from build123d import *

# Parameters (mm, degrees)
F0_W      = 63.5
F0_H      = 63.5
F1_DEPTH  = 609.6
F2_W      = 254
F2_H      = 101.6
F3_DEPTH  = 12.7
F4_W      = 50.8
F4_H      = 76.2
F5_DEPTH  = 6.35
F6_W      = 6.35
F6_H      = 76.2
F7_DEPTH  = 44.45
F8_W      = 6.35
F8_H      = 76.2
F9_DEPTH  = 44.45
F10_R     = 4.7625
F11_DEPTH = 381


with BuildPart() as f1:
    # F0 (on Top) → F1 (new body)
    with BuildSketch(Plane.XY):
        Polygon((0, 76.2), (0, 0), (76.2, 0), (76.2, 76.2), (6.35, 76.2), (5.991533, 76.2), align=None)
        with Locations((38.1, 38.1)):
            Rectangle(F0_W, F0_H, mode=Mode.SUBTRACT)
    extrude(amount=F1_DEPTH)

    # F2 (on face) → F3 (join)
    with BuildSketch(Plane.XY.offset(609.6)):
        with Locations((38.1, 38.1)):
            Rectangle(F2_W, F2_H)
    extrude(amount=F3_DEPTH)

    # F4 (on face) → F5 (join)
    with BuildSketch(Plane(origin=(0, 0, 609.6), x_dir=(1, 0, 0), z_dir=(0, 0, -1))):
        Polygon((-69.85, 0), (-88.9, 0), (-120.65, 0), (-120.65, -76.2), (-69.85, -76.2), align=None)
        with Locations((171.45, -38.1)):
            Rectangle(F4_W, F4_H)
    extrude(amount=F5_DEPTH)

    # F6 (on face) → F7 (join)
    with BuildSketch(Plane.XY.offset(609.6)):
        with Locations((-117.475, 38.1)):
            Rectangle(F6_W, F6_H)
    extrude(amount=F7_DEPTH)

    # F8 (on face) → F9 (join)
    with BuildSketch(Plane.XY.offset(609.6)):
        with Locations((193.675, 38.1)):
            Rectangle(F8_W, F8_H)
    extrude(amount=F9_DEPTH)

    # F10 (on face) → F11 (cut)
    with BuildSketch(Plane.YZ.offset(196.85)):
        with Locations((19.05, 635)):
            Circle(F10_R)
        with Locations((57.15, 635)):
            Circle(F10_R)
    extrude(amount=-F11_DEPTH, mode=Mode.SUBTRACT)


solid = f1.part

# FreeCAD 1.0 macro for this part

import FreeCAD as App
import Part
import Sketcher

V = App.Vector
Q = App.Units.Quantity


def add_polygon(sketch, points):
    """Adds a closed chain of lines whose ends are joined by coincident constraints."""
    first, n = sketch.GeometryCount, len(points)
    for a, b in zip(points, points[1:] + points[:1]):
        sketch.addGeometry(Part.LineSegment(App.Vector(*a, 0), App.Vector(*b, 0)), False)
    for i in range(n):
        sketch.addConstraint(Sketcher.Constraint("Coincident", first + i, 2, first + (i + 1) % n, 1))

doc = App.newDocument("Part")
body = doc.addObject("PartDesign::Body", "Body")

sketch1 = body.newObject("Sketcher::SketchObject", "Sketch")
sketch1.AttachmentSupport = (doc.getObject("XY_Plane"), [""])
sketch1.MapMode = "FlatFace"
add_polygon(sketch1, [(0, 76), (0, 0), (76, 0), (76, 76)])
add_polygon(sketch1, [(70, 6), (6, 6), (6, 70), (70, 70)])
sketch1.addConstraint(Sketcher.Constraint("Vertical", 0))
sketch1.addConstraint(Sketcher.Constraint("Horizontal", 1))
sketch1.addConstraint(Sketcher.Constraint("Vertical", 2))
sketch1.addConstraint(Sketcher.Constraint("Horizontal", 3))
sketch1.addConstraint(Sketcher.Constraint("Horizontal", 4))
sketch1.addConstraint(Sketcher.Constraint("Vertical", 5))
sketch1.addConstraint(Sketcher.Constraint("Horizontal", 6))
sketch1.addConstraint(Sketcher.Constraint("Vertical", 7))
sketch1.addConstraint(Sketcher.Constraint("Coincident", 0, 2, -1, 1))
sketch1.addConstraint(Sketcher.Constraint("Equal", 3, 0))
sketch1.addConstraint(Sketcher.Constraint("Equal", 6, 5))
sketch1.addConstraint(Sketcher.Constraint("DistanceX", 1, 1, 1, 2, Q("3 in")))
sketch1.addConstraint(Sketcher.Constraint("DistanceX", 4, 2, 4, 1, Q("2.5 in")))
sketch1.addConstraint(Sketcher.Constraint("DistanceX", -1, 1, 4, 2, Q("0.25 in")))
sketch1.addConstraint(Sketcher.Constraint("DistanceY", -1, 1, 4, 2, Q("0.25 in")))
pad1 = body.newObject("PartDesign::Pad", "Pad")
pad1.Profile = sketch1
pad1.Length = Q("24 in")

sketch2 = body.newObject("Sketcher::SketchObject", "Sketch001")
sketch2.AttachmentSupport = (doc.getObject("XY_Plane"), [""])
sketch2.MapMode = "FlatFace"
sketch2.AttachmentOffset = App.Placement(V(0, 0, 24 * 25.4), App.Rotation())
add_polygon(sketch2, [(-89, 89), (-89, -13), (165, -13), (165, 89)])
sketch2.addConstraint(Sketcher.Constraint("Vertical", 0))
sketch2.addConstraint(Sketcher.Constraint("Horizontal", 1))
sketch2.addConstraint(Sketcher.Constraint("Vertical", 2))
sketch2.addConstraint(Sketcher.Constraint("Horizontal", 3))
sketch2.addConstraint(Sketcher.Constraint("DistanceX", 1, 1, 1, 2, Q("10 in")))
sketch2.addConstraint(Sketcher.Constraint("DistanceY", 0, 2, 0, 1, Q("4 in")))
sketch2.addConstraint(Sketcher.Constraint("DistanceX", 0, 2, -1, 1, Q("3.5 in")))
sketch2.addConstraint(Sketcher.Constraint("DistanceY", 0, 2, -1, 1, Q("0.5 in")))
pad2 = body.newObject("PartDesign::Pad", "Pad001")
pad2.Profile = sketch2
pad2.Length = Q("0.5 in")

sketch3 = body.newObject("Sketcher::SketchObject", "Sketch002")
sketch3.AttachmentSupport = (doc.getObject("XY_Plane"), [""])
sketch3.MapMode = "FlatFace"
sketch3.AttachmentOffset = App.Placement(V(0, 0, 24 * 25.4), App.Rotation())
add_polygon(sketch3, [(-70, 0), (-121, 0), (-121, 76), (-70, 76)])
add_polygon(sketch3, [(146, 0), (146, 76), (197, 76), (197, 0)])
sketch3.addConstraint(Sketcher.Constraint("Horizontal", 0))
sketch3.addConstraint(Sketcher.Constraint("Vertical", 1))
sketch3.addConstraint(Sketcher.Constraint("Horizontal", 2))
sketch3.addConstraint(Sketcher.Constraint("Vertical", 3))
sketch3.addConstraint(Sketcher.Constraint("Vertical", 4))
sketch3.addConstraint(Sketcher.Constraint("Horizontal", 5))
sketch3.addConstraint(Sketcher.Constraint("Vertical", 6))
sketch3.addConstraint(Sketcher.Constraint("Horizontal", 7))
sketch3.addConstraint(Sketcher.Constraint("PointOnObject", 0, 2, -1))
sketch3.addConstraint(Sketcher.Constraint("PointOnObject", 6, 2, -1))
sketch3.addConstraint(Sketcher.Constraint("Horizontal", 2, 2, 4, 2))
sketch3.addConstraint(Sketcher.Constraint("Equal", 2, 5))
sketch3.addConstraint(Sketcher.Constraint("DistanceX", 0, 2, 0, 1, Q("2 in")))
sketch3.addConstraint(Sketcher.Constraint("DistanceY", 1, 1, 1, 2, Q("3 in")))
sketch3.addConstraint(Sketcher.Constraint("DistanceX", 2, 2, 4, 2, Q("8.5 in")))
sketch3.addConstraint(Sketcher.Constraint("DistanceX", 0, 2, -1, 1, Q("4.75 in")))
pad3 = body.newObject("PartDesign::Pad", "Pad002")
pad3.Profile = sketch3
pad3.Length = Q("0.25 in")
pad3.Reversed = True

sketch4 = body.newObject("Sketcher::SketchObject", "Sketch003")
sketch4.AttachmentSupport = (doc.getObject("XY_Plane"), [""])
sketch4.MapMode = "FlatFace"
sketch4.AttachmentOffset = App.Placement(V(0, 0, 24 * 25.4), App.Rotation())
add_polygon(sketch4, [(-121, 76), (-121, 0), (-114, 0), (-114, 76)])
sketch4.addConstraint(Sketcher.Constraint("Vertical", 0))
sketch4.addConstraint(Sketcher.Constraint("Horizontal", 1))
sketch4.addConstraint(Sketcher.Constraint("Vertical", 2))
sketch4.addConstraint(Sketcher.Constraint("Horizontal", 3))
sketch4.addConstraint(Sketcher.Constraint("PointOnObject", 0, 2, -1))
sketch4.addConstraint(Sketcher.Constraint("DistanceY", 0, 2, 0, 1, Q("3 in")))
sketch4.addConstraint(Sketcher.Constraint("DistanceX", 1, 1, 1, 2, Q("0.25 in")))
sketch4.addConstraint(Sketcher.Constraint("DistanceX", 1, 2, -1, 1, Q("4.5 in")))
pad4 = body.newObject("PartDesign::Pad", "Pad003")
pad4.Profile = sketch4
pad4.Length = Q("1.75 in")

sketch5 = body.newObject("Sketcher::SketchObject", "Sketch004")
sketch5.AttachmentSupport = (doc.getObject("XY_Plane"), [""])
sketch5.MapMode = "FlatFace"
sketch5.AttachmentOffset = App.Placement(V(0, 0, 24 * 25.4), App.Rotation())
add_polygon(sketch5, [(190, 76), (190, 0), (197, 0), (197, 76)])
sketch5.addConstraint(Sketcher.Constraint("Vertical", 0))
sketch5.addConstraint(Sketcher.Constraint("Horizontal", 1))
sketch5.addConstraint(Sketcher.Constraint("Vertical", 2))
sketch5.addConstraint(Sketcher.Constraint("Horizontal", 3))
sketch5.addConstraint(Sketcher.Constraint("PointOnObject", 0, 2, -1))
sketch5.addConstraint(Sketcher.Constraint("DistanceY", 0, 2, 0, 1, Q("3 in")))
sketch5.addConstraint(Sketcher.Constraint("DistanceX", 1, 1, 1, 2, Q("0.25 in")))
sketch5.addConstraint(Sketcher.Constraint("DistanceX", -1, 1, 0, 2, Q("7.5 in")))
pad5 = body.newObject("PartDesign::Pad", "Pad004")
pad5.Profile = sketch5
pad5.Length = Q("1.75 in")

sketch6 = body.newObject("Sketcher::SketchObject", "Sketch005")
sketch6.AttachmentSupport = (doc.getObject("YZ_Plane"), [""])
sketch6.MapMode = "FlatFace"
sketch6.AttachmentOffset = App.Placement(V(0, 0, 7.75 * 25.4), App.Rotation())
sketch6.addGeometry(Part.Circle(V(19.1, 635, 0), V(0, 0, 1), 4.8), False)
sketch6.addGeometry(Part.Circle(V(57.1, 635, 0), V(0, 0, 1), 4.8), False)
sketch6.addConstraint(Sketcher.Constraint("Equal", 0, 1))
sketch6.addConstraint(Sketcher.Constraint("Horizontal", 0, 3, 1, 3))
sketch6.addConstraint(Sketcher.Constraint("Diameter", 0, Q("0.375 in")))
sketch6.addConstraint(Sketcher.Constraint("DistanceY", -1, 1, 0, 3, Q("25 in")))
sketch6.addConstraint(Sketcher.Constraint("DistanceX", 0, 3, 1, 3, Q("1.5 in")))
sketch6.addConstraint(Sketcher.Constraint("DistanceX", -1, 1, 0, 3, Q("0.75 in")))
pocket1 = body.newObject("PartDesign::Pocket", "Pocket")
pocket1.Profile = sketch6
pocket1.Length = Q("15 in")

doc.recompute()
